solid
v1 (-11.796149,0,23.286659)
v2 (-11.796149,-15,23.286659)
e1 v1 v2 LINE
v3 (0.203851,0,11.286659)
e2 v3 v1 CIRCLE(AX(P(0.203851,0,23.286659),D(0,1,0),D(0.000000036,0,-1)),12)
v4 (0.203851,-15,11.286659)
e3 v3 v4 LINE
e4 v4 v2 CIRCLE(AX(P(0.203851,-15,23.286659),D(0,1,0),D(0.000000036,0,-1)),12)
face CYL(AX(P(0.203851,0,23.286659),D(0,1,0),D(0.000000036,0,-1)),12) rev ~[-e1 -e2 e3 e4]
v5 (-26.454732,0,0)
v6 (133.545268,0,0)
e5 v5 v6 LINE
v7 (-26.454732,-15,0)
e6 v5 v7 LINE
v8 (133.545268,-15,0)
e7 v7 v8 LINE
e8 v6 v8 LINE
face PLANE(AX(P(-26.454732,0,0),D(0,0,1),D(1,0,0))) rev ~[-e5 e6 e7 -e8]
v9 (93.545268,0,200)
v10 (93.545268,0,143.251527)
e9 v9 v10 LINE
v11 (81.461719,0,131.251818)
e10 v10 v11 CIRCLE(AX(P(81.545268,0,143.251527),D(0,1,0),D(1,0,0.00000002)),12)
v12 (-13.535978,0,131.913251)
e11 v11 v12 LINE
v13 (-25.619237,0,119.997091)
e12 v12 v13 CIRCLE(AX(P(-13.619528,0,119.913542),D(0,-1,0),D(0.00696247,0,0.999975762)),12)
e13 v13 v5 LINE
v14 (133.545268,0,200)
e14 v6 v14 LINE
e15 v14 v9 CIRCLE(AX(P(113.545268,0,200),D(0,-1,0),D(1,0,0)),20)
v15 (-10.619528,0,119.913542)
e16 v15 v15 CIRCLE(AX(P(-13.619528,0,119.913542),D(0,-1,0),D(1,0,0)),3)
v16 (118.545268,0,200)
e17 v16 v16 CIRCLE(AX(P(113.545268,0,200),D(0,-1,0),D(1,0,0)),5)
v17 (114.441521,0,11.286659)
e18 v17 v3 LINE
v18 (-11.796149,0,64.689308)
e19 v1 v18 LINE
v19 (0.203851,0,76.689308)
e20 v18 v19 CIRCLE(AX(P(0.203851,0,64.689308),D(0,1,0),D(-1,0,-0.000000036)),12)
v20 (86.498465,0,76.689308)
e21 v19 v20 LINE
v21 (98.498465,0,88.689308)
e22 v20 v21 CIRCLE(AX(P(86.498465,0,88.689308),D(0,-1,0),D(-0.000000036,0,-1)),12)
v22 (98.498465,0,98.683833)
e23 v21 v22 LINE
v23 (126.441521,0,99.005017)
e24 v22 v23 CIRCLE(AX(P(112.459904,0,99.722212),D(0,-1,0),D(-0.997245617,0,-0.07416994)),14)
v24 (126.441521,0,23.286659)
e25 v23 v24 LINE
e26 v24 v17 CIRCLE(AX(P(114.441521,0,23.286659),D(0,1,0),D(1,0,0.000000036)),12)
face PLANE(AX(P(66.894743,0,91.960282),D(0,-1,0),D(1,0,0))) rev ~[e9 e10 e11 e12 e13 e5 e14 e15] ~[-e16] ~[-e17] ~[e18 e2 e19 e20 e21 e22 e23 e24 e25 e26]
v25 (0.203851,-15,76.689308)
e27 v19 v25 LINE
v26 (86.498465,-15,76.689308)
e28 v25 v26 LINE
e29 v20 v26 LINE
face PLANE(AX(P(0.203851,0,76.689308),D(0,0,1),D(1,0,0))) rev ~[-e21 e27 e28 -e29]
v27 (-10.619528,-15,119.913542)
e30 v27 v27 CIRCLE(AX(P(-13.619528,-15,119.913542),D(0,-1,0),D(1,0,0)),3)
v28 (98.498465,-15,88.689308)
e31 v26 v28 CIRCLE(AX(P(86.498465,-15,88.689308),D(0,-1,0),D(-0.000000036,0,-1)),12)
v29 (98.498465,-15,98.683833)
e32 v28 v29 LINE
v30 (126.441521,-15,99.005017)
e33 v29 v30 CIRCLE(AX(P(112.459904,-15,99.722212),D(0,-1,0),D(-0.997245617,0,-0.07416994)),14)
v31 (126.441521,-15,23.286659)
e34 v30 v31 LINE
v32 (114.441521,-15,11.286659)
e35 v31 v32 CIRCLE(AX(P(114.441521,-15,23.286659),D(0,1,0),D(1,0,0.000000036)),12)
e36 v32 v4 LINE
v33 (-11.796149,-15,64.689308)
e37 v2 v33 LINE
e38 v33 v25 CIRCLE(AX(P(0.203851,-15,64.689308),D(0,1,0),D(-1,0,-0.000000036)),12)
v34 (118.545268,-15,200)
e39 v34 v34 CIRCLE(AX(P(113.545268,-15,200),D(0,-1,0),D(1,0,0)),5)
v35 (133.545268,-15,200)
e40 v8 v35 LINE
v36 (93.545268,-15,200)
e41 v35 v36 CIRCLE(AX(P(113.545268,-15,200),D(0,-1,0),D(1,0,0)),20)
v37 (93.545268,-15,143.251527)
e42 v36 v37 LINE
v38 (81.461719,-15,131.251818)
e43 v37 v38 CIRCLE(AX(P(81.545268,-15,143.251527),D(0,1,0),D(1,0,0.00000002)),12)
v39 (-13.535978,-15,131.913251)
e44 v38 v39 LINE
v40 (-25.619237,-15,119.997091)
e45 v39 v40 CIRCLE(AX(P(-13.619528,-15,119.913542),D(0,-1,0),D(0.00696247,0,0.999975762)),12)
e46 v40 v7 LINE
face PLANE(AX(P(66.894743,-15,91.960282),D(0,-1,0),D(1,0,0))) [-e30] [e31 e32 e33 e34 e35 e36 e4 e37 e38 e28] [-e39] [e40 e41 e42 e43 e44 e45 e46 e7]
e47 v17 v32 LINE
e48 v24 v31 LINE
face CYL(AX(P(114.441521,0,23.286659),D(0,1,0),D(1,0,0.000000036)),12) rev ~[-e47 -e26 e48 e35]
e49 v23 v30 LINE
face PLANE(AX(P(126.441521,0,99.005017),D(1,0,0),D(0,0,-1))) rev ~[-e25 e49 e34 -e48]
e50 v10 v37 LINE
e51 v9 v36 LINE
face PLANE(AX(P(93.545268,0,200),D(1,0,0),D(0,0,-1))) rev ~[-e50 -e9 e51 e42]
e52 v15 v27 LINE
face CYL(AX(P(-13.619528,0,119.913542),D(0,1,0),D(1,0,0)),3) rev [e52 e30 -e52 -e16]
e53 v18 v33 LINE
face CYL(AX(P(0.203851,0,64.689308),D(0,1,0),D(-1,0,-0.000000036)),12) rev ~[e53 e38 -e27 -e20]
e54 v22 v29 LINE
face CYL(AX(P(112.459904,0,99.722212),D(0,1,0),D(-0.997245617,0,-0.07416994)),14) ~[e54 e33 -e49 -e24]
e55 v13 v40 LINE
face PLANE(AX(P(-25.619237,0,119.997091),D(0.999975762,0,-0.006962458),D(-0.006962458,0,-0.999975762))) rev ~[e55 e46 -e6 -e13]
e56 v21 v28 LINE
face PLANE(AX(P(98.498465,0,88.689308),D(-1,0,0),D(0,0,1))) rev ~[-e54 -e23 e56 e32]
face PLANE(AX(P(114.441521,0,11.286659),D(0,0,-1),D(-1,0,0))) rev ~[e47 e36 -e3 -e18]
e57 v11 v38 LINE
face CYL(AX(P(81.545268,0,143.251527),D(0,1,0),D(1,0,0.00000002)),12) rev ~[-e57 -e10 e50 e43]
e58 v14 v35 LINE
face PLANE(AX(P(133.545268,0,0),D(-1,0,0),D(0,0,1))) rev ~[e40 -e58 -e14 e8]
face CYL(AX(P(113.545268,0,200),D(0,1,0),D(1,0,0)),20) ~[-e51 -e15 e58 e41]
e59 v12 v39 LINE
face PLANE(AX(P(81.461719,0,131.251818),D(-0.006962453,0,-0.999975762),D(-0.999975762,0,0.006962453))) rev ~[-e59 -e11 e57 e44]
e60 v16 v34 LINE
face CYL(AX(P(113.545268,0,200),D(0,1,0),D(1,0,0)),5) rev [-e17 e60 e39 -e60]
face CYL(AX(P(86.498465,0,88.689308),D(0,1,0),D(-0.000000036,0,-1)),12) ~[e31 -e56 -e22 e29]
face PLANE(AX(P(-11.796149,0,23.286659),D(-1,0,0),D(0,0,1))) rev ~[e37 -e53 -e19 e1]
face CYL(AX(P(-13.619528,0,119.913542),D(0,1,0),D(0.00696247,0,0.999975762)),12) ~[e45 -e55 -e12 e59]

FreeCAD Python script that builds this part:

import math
import FreeCAD as App
import Part
import Sketcher

V = App.Vector

doc = App.newDocument("Part")
body = doc.addObject("PartDesign::Body", "Body")

# Sketch on XZ plane
sketch1 = body.newObject("Sketcher::SketchObject", "Sketch")
sketch1.AttachmentSupport = (doc.getObject("XZ_Plane"), [""])
sketch1.MapMode = "FlatFace"
sketch1.addGeometry(Part.LineSegment(V(-25.619237, 119.997091, 0), V(-26.454732, 0, 0)), False)
sketch1.addGeometry(Part.LineSegment(V(-26.454732, 0, 0), V(133.545268, 0, 0)), False)
sketch1.addGeometry(Part.LineSegment(V(133.545268, 0, 0), V(133.545268, 200, 0)), False)
sketch1.addGeometry(Part.ArcOfCircle(Part.Circle(V(113.545268, 200, 0), V(0, 0, 1), 20), math.radians(0), math.radians(180)), False)
sketch1.addGeometry(Part.LineSegment(V(93.545268, 200, 0), V(93.545268, 143.251527, 0)), False)
sketch1.addGeometry(Part.ArcOfCircle(Part.Circle(V(81.545268, 143.251527, 0), V(0, 0, 1), 12), math.radians(-90.398922), math.radians(0.000001)), False)
sketch1.addGeometry(Part.LineSegment(V(81.461719, 131.251818, 0), V(-13.535978, 131.913251, 0)), False)
sketch1.addGeometry(Part.ArcOfCircle(Part.Circle(V(-13.619528, 119.913542, 0), V(0, 0, 1), 12), math.radians(89.601077), math.radians(179.601078)), False)
sketch1.addGeometry(Part.ArcOfCircle(Part.Circle(V(86.498465, 88.689308, 0), V(0, 0, 1), 12), math.radians(-90.000002), math.radians(0.000002)), False)
sketch1.addGeometry(Part.LineSegment(V(98.498465, 88.689308, 0), V(98.498465, 98.683833, 0)), False)
sketch1.addGeometry(Part.ArcOfCircle(Part.Circle(V(112.459904, 99.722212, 0), V(0, 0, 1), 14), math.radians(-175.746469), math.radians(-2.936446)), False)
sketch1.addGeometry(Part.LineSegment(V(126.441521, 99.005017, 0), V(126.441521, 23.286659, 0)), False)
sketch1.addGeometry(Part.ArcOfCircle(Part.Circle(V(114.441521, 23.286659, 0), V(0, 0, 1), 12), math.radians(-90.000002), math.radians(0.000002)), False)
sketch1.addGeometry(Part.LineSegment(V(114.441521, 11.286659, 0), V(0.203851, 11.286659, 0)), False)
sketch1.addGeometry(Part.ArcOfCircle(Part.Circle(V(0.203851, 23.286659, 0), V(0, 0, 1), 12), math.radians(179.999998), math.radians(270.000002)), False)
sketch1.addGeometry(Part.LineSegment(V(-11.796149, 23.286659, 0), V(-11.796149, 64.689308, 0)), False)
sketch1.addGeometry(Part.ArcOfCircle(Part.Circle(V(0.203851, 64.689308, 0), V(0, 0, 1), 12), math.radians(89.999998), math.radians(180.000002)), False)
sketch1.addGeometry(Part.LineSegment(V(0.203851, 76.689308, 0), V(86.498465, 76.689308, 0)), False)
sketch1.addGeometry(Part.Circle(V(-13.619528, 119.913542, 0), V(0, 0, 1), 3), False)
sketch1.addGeometry(Part.Circle(V(113.545268, 200, 0), V(0, 0, 1), 5), False)
sketch1.addConstraint(Sketcher.Constraint("Coincident", 0, 2, 1, 1))
sketch1.addConstraint(Sketcher.Constraint("Coincident", 1, 2, 2, 1))
sketch1.addConstraint(Sketcher.Constraint("Tangent", 2, 2, 3, 1))
sketch1.addConstraint(Sketcher.Constraint("Tangent", 3, 2, 4, 1))
sketch1.addConstraint(Sketcher.Constraint("Tangent", 4, 2, 5, 2))
sketch1.addConstraint(Sketcher.Constraint("Tangent", 5, 1, 6, 1))
sketch1.addConstraint(Sketcher.Constraint("Tangent", 6, 2, 7, 1))
sketch1.addConstraint(Sketcher.Constraint("Tangent", 7, 2, 0, 1))
sketch1.addConstraint(Sketcher.Constraint("Tangent", 8, 2, 9, 1))
sketch1.addConstraint(Sketcher.Constraint("Coincident", 9, 2, 10, 1))
sketch1.addConstraint(Sketcher.Constraint("Coincident", 10, 2, 11, 1))
sketch1.addConstraint(Sketcher.Constraint("Tangent", 11, 2, 12, 2))
sketch1.addConstraint(Sketcher.Constraint("Tangent", 12, 1, 13, 1))
sketch1.addConstraint(Sketcher.Constraint("Tangent", 13, 2, 14, 2))
sketch1.addConstraint(Sketcher.Constraint("Tangent", 14, 1, 15, 1))
sketch1.addConstraint(Sketcher.Constraint("Tangent", 15, 2, 16, 2))
sketch1.addConstraint(Sketcher.Constraint("Tangent", 16, 1, 17, 1))
sketch1.addConstraint(Sketcher.Constraint("Tangent", 17, 2, 8, 1))
sketch1.addConstraint(Sketcher.Constraint("Horizontal", 1))
sketch1.addConstraint(Sketcher.Constraint("Vertical", 2))
sketch1.addConstraint(Sketcher.Constraint("Vertical", 4))
sketch1.addConstraint(Sketcher.Constraint("Vertical", 9))
sketch1.addConstraint(Sketcher.Constraint("Vertical", 11))
sketch1.addConstraint(Sketcher.Constraint("Horizontal", 13))
sketch1.addConstraint(Sketcher.Constraint("Vertical", 15))
sketch1.addConstraint(Sketcher.Constraint("Horizontal", 17))
sketch1.addConstraint(Sketcher.Constraint("Coincident", 18, 3, 7, 3))
sketch1.addConstraint(Sketcher.Constraint("Coincident", 19, 3, 3, 3))
sketch1.addConstraint(Sketcher.Constraint("Equal", 5, 7))
sketch1.addConstraint(Sketcher.Constraint("Equal", 7, 8))
sketch1.addConstraint(Sketcher.Constraint("Equal", 8, 12))
sketch1.addConstraint(Sketcher.Constraint("Equal", 12, 14))
sketch1.addConstraint(Sketcher.Constraint("Equal", 14, 16))
sketch1.addConstraint(Sketcher.Constraint("PointOnObject", 0, 2, -1))
sketch1.addConstraint(Sketcher.Constraint("Perpendicular", 0, 6))
sketch1.addConstraint(Sketcher.Constraint("Diameter", 18, 6.0))
sketch1.addConstraint(Sketcher.Constraint("Diameter", 19, 10.0))
sketch1.addConstraint(Sketcher.Constraint("Radius", 3, 20.0))
sketch1.addConstraint(Sketcher.Constraint("Radius", 5, 12.0))
sketch1.addConstraint(Sketcher.Constraint("Radius", 10, 14.0))
sketch1.addConstraint(Sketcher.Constraint("DistanceX", 1, 1, 1, 2, 160.0))
sketch1.addConstraint(Sketcher.Constraint("DistanceY", 2, 1, 2, 2, 200.0))
sketch1.addConstraint(Sketcher.Constraint("Distance", 0, 120.0))
sketch1.addConstraint(Sketcher.Constraint("Distance", 6, 95.0))
sketch1.addConstraint(Sketcher.Constraint("DistanceX", 13, 2, 13, 1, 114.23767))
sketch1.addConstraint(Sketcher.Constraint("DistanceY", 15, 1, 15, 2, 41.402649))
sketch1.addConstraint(Sketcher.Constraint("DistanceX", 17, 1, 17, 2, 86.294614))
sketch1.addConstraint(Sketcher.Constraint("DistanceY", 9, 1, 9, 2, 9.994525))
sketch1.addConstraint(Sketcher.Constraint("DistanceY", 11, 2, 11, 1, 75.718358))
sketch1.addConstraint(Sketcher.Constraint("DistanceX", -1, 1, 5, 3, 81.545268))
sketch1.addConstraint(Sketcher.Constraint("DistanceX", -1, 1, 12, 3, 114.441521))
sketch1.addConstraint(Sketcher.Constraint("DistanceY", -1, 1, 12, 3, 23.286659))
pad1 = body.newObject("PartDesign::Pad", "Pad")
pad1.Profile = sketch1
pad1.Length = 15

doc.recompute()
